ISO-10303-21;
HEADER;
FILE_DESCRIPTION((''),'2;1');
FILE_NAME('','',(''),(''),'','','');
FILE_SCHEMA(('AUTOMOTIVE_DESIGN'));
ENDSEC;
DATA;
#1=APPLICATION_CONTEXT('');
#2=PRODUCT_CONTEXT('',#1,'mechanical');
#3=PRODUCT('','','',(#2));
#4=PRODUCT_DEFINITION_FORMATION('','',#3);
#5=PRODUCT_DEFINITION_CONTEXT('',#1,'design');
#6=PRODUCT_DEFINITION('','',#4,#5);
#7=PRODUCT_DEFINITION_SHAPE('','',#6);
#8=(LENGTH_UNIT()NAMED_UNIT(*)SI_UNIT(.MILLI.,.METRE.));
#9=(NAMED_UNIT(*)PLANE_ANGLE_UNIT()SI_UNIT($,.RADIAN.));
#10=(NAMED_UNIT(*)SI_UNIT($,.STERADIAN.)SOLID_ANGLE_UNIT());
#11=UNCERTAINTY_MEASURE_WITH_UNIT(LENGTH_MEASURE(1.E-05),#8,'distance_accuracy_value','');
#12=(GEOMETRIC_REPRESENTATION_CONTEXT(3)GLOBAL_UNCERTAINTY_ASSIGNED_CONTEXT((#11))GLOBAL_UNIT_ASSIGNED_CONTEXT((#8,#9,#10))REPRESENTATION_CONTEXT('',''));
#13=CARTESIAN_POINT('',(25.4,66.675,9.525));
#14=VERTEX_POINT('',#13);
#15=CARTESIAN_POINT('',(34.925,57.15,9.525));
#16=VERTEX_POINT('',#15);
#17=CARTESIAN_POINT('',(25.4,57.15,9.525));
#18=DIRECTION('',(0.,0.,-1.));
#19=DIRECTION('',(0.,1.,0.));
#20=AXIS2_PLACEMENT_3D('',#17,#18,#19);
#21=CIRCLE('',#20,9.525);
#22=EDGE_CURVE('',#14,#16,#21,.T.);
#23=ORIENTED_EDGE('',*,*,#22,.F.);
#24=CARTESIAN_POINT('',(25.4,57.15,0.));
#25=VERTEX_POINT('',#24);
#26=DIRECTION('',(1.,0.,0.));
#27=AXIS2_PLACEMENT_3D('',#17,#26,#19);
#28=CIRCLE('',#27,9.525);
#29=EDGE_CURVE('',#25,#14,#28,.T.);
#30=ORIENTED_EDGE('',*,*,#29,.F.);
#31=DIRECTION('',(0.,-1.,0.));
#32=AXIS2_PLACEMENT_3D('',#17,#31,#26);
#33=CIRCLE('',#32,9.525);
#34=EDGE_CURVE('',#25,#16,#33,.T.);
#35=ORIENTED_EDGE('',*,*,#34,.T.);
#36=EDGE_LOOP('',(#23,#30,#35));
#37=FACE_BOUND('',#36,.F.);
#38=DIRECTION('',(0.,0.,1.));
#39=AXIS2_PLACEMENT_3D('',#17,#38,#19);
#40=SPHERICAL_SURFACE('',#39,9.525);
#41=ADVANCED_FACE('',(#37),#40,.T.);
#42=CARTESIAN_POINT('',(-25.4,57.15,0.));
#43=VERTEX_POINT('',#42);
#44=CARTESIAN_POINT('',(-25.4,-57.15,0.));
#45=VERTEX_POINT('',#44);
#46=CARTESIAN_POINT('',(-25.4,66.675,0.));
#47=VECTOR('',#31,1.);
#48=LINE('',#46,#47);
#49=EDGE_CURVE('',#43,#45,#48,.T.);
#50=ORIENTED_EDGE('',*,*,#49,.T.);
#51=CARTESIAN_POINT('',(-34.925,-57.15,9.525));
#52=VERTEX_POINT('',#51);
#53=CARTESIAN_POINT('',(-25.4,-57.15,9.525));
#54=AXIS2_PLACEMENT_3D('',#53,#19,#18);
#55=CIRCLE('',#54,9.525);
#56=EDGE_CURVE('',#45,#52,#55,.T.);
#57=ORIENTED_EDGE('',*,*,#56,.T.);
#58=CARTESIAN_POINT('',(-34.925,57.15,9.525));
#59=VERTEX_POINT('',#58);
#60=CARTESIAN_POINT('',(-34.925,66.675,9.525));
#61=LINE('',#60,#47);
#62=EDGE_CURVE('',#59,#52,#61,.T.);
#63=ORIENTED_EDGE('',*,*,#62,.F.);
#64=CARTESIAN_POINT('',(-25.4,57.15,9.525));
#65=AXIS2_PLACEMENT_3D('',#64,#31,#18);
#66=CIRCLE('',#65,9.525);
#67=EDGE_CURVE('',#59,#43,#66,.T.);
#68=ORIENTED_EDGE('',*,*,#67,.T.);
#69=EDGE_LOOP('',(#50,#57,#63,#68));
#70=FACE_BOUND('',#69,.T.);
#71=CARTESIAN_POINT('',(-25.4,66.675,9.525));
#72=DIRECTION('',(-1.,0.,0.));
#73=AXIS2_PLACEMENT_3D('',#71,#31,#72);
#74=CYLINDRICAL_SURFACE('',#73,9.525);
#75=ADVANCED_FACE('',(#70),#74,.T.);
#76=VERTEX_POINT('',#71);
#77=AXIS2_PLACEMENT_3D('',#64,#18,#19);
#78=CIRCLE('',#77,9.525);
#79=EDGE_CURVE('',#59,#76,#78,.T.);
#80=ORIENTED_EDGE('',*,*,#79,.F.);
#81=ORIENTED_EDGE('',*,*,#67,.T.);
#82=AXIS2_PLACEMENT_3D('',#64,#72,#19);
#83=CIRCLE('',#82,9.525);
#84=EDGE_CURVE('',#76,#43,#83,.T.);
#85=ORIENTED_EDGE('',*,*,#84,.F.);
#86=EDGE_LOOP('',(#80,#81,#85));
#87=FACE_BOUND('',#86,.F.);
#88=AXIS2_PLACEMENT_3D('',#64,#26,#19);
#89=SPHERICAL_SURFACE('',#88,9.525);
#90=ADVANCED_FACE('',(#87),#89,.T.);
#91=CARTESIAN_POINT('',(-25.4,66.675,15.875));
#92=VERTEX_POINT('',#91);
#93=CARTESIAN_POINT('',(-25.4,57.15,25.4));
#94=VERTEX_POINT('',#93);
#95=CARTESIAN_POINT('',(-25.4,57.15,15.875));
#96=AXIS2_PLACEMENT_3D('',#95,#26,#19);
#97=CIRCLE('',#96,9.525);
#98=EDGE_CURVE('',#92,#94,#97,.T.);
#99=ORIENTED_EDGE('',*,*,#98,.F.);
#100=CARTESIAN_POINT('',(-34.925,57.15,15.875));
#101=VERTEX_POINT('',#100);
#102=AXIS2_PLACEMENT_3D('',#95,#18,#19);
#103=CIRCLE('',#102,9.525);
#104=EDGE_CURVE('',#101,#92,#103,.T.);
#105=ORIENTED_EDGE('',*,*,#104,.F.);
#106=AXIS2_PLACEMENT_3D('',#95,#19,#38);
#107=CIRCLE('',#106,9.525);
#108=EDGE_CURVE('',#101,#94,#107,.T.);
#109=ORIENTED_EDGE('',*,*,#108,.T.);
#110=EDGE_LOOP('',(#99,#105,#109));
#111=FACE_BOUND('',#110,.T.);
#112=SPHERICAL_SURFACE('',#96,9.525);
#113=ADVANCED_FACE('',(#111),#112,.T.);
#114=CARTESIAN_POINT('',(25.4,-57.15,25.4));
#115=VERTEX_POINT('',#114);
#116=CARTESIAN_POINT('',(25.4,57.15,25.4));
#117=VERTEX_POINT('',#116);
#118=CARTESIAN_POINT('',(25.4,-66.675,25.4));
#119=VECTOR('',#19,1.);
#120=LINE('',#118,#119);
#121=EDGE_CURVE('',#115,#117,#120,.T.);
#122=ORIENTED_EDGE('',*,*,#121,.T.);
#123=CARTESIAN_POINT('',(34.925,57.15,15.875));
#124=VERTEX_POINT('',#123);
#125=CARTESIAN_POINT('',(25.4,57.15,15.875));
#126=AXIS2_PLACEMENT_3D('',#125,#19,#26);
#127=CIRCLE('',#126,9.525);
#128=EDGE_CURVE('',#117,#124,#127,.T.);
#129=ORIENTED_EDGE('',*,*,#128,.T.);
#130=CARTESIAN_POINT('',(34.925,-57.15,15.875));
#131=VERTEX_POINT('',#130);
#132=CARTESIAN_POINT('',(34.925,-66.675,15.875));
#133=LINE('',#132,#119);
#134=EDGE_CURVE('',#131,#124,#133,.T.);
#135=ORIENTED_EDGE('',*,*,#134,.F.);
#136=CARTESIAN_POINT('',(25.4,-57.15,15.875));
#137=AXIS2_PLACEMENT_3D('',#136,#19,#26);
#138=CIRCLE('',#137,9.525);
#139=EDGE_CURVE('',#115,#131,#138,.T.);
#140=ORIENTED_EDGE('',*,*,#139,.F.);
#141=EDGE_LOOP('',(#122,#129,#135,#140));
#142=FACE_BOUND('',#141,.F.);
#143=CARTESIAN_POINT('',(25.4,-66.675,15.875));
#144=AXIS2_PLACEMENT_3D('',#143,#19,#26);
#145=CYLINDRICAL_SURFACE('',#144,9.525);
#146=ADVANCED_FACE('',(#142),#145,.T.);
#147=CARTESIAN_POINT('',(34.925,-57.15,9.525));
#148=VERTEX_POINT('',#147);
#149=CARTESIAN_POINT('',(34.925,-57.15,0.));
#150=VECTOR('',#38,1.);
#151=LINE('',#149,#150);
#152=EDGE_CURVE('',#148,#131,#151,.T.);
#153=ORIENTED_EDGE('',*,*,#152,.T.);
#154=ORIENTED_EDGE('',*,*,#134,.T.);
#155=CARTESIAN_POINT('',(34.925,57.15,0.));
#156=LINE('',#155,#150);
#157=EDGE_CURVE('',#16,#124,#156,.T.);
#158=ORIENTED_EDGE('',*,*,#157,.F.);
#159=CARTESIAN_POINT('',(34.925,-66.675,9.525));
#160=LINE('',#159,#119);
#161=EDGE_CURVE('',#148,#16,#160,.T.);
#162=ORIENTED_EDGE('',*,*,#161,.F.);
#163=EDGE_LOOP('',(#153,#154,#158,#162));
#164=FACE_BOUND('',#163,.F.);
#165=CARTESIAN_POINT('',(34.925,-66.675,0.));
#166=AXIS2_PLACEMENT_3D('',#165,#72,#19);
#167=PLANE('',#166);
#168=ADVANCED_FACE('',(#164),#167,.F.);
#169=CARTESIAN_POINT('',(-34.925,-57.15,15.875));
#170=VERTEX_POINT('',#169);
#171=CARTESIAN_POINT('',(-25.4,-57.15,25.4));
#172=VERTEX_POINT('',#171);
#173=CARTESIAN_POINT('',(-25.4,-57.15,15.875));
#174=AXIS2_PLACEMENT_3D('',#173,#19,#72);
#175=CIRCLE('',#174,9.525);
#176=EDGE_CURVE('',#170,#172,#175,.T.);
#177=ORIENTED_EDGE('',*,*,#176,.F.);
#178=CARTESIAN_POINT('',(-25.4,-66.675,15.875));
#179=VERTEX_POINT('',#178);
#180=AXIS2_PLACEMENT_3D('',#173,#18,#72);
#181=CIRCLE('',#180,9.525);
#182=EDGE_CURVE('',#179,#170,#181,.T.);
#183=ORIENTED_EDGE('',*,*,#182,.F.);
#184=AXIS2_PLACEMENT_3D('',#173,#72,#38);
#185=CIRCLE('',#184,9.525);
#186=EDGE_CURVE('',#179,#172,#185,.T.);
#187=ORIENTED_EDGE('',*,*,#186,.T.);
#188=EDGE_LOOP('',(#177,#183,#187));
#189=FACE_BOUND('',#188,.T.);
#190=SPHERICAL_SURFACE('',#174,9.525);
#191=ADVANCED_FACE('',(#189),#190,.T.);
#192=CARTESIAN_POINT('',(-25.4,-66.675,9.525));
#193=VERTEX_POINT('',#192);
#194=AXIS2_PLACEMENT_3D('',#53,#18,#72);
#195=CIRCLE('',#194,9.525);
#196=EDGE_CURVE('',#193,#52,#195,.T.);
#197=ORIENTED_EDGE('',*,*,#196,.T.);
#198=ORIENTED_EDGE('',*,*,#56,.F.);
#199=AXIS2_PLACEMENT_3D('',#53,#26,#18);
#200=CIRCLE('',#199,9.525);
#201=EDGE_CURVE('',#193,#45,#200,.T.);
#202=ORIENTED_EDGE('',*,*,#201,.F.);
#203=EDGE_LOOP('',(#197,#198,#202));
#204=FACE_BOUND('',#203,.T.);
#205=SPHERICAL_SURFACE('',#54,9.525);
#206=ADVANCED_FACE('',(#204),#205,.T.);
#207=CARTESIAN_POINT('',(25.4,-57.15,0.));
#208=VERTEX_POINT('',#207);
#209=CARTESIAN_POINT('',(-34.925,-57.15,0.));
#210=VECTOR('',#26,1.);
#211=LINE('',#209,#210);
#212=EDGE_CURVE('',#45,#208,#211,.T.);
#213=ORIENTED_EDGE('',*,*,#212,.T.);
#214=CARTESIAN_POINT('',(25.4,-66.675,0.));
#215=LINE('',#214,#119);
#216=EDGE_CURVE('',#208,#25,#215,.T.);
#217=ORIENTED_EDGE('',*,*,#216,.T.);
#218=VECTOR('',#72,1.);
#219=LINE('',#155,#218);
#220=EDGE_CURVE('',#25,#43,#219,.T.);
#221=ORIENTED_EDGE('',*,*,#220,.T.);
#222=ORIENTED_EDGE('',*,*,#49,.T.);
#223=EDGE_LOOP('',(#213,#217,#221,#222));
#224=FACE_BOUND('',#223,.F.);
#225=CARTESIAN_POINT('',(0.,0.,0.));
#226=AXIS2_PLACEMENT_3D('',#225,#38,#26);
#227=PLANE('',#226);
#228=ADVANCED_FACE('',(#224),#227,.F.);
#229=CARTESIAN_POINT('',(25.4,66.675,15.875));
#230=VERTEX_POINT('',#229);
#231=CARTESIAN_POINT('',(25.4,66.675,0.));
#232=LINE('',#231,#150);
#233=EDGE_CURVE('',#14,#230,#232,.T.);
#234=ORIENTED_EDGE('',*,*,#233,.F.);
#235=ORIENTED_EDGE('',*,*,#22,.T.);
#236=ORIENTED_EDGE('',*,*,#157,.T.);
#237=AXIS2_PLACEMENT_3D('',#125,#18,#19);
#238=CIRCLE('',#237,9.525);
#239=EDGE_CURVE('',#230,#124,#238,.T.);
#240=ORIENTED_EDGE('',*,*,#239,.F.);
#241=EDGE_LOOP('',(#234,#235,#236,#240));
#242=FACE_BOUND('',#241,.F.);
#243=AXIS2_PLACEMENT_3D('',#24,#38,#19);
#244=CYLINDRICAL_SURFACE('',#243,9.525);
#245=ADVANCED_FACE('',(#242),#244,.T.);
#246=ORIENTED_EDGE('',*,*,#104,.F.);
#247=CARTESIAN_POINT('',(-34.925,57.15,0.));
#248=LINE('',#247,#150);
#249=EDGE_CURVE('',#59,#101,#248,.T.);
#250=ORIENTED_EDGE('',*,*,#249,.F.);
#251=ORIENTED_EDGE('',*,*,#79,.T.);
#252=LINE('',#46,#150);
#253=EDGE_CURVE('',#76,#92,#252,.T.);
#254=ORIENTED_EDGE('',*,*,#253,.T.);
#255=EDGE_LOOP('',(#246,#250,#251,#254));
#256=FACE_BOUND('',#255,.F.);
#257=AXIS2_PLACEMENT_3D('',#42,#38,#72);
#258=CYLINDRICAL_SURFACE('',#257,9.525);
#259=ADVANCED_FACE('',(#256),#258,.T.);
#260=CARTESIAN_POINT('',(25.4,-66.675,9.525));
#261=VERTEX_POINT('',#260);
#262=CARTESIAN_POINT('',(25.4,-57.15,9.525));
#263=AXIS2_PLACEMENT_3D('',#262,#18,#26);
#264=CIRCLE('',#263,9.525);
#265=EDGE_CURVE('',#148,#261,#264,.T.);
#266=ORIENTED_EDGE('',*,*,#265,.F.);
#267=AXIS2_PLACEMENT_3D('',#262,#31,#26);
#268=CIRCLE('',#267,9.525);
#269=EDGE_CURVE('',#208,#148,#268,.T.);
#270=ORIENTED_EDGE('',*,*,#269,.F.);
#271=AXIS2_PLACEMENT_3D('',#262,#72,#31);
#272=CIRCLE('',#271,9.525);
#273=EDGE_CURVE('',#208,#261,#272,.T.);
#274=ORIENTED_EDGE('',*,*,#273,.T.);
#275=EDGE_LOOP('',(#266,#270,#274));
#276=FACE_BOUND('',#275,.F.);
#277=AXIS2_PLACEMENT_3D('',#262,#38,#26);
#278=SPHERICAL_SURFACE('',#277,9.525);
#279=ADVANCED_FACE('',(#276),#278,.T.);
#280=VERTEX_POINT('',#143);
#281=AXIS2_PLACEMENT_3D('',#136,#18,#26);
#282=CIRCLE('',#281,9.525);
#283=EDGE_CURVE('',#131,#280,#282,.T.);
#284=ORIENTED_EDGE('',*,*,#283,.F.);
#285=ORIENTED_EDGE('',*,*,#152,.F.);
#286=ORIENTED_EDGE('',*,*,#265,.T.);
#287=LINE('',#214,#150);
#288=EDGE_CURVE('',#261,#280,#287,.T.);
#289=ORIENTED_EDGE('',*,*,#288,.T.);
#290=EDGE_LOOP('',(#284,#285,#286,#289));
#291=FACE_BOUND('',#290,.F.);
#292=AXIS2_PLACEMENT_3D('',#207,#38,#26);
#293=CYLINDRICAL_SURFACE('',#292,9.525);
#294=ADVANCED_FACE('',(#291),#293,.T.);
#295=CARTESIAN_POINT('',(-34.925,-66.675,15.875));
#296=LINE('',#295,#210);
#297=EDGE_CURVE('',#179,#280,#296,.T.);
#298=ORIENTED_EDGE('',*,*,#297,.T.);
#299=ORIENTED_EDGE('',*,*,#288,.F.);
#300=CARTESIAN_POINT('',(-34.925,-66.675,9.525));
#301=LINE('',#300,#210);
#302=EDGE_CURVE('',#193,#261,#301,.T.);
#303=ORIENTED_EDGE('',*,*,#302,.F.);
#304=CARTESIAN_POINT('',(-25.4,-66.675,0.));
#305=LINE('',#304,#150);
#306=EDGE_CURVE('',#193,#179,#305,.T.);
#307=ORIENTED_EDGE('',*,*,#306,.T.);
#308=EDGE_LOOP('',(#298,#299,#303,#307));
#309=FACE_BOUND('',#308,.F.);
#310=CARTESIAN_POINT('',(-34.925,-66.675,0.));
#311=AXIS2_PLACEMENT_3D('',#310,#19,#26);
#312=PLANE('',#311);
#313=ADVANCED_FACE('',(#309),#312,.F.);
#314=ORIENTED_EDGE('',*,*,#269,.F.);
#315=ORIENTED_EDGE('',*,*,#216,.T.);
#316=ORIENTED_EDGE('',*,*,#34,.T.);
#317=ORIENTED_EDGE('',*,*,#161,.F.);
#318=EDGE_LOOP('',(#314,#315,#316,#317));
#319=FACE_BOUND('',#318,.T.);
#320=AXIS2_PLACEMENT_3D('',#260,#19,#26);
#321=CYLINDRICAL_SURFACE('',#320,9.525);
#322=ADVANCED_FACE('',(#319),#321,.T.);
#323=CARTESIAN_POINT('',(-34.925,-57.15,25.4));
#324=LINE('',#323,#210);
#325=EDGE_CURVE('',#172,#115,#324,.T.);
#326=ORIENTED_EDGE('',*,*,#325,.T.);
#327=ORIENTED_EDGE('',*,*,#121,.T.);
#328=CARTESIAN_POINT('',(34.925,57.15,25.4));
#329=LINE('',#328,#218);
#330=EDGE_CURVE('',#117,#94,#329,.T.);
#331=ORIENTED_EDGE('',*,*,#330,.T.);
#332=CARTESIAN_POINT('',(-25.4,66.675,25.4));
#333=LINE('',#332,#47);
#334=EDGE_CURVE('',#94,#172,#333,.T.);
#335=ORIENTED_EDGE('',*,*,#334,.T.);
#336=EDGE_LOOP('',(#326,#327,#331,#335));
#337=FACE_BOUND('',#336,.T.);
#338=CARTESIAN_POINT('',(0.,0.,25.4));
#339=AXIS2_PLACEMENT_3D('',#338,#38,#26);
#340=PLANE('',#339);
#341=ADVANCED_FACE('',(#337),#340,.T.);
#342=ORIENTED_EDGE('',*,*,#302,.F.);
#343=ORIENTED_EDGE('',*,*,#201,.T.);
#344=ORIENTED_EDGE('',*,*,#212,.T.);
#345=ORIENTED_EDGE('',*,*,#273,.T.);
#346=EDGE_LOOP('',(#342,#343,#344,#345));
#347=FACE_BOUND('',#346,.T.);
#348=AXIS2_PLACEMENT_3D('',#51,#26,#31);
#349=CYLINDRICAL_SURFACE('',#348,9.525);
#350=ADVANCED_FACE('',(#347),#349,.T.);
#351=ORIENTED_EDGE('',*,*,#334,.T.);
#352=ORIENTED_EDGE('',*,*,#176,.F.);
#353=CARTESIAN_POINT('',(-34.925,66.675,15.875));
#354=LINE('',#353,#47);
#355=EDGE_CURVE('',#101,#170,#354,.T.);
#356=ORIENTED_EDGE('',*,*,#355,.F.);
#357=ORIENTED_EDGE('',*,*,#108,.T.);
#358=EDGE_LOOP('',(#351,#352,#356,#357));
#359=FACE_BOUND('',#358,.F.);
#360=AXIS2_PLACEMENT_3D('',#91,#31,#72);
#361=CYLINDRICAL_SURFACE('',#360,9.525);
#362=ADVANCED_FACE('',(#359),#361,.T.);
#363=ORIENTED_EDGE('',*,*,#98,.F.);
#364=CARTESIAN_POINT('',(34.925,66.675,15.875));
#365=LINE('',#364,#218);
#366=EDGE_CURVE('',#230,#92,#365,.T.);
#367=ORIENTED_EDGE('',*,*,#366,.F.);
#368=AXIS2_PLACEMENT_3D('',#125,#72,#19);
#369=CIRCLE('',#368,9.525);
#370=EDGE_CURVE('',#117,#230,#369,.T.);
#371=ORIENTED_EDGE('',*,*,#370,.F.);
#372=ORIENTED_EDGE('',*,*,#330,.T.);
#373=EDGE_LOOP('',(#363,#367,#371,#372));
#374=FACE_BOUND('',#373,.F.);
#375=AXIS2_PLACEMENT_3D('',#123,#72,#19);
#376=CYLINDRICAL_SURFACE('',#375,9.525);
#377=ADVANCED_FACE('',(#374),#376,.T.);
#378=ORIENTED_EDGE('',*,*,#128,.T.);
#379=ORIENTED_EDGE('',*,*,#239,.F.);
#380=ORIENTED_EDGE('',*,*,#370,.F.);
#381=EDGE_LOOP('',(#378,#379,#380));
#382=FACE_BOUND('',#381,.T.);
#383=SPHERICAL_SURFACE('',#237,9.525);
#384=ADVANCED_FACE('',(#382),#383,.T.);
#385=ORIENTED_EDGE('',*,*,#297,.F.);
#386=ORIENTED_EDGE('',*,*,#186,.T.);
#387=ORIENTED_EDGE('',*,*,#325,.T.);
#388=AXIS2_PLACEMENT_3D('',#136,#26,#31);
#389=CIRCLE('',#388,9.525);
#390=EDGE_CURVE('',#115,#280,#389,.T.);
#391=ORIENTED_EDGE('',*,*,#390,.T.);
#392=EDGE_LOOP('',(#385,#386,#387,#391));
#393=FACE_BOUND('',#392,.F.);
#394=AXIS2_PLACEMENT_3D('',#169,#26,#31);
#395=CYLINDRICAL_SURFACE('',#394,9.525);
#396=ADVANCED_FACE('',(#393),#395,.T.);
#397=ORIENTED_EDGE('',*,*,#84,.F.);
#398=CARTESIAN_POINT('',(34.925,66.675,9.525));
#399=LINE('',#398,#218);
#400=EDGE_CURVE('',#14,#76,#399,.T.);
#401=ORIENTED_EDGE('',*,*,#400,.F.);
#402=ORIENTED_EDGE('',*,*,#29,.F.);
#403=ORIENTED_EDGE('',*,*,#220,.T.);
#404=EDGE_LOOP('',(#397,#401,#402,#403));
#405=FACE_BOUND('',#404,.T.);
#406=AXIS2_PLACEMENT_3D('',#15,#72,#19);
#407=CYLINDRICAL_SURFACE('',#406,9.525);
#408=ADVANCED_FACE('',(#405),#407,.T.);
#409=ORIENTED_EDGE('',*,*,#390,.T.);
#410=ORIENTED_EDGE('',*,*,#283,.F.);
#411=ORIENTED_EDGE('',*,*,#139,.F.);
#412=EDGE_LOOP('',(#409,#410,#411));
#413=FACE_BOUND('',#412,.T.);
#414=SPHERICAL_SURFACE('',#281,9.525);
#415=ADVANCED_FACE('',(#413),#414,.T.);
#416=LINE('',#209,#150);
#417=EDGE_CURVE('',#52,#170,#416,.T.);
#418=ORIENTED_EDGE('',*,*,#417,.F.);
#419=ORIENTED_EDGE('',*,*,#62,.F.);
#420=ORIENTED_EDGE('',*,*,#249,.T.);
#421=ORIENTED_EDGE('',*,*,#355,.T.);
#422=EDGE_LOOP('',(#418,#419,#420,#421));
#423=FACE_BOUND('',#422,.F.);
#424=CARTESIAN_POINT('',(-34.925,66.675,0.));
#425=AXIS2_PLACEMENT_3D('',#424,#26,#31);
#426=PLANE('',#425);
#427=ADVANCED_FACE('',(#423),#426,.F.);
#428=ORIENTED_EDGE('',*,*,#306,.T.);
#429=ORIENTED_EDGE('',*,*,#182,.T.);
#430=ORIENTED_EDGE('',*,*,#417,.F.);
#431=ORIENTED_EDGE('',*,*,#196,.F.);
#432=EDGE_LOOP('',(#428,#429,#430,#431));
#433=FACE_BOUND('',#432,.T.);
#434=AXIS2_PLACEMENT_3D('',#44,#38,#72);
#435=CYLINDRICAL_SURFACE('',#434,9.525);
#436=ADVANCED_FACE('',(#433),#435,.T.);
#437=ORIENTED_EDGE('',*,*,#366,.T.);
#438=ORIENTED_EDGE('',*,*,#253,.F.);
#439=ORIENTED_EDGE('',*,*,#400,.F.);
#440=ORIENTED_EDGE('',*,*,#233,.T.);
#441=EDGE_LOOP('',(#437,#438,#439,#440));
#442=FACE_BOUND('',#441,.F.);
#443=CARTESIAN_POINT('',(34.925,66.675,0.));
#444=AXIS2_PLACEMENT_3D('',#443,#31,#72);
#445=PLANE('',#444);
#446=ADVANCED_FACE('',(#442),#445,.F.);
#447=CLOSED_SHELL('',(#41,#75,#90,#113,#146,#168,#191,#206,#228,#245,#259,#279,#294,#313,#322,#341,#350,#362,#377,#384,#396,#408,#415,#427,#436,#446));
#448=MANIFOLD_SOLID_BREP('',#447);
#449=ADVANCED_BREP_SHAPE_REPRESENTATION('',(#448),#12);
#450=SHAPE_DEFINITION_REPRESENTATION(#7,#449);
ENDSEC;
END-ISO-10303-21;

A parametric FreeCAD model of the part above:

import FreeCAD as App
import Part
import Sketcher
from FreeCAD import Vector
Q = App.Units.Quantity

doc = App.newDocument("Part")
body = doc.addObject("PartDesign::Body", "Body")

sketch1 = body.newObject("Sketcher::SketchObject", "Sketch")
sketch1.AttachmentSupport = (doc.getObject("XY_Plane"), [""])
sketch1.MapMode = "FlatFace"
sketch1.addGeometry([
    Part.LineSegment(Vector(-35, 67, 0), Vector(-35, -67, 0)),
    Part.LineSegment(Vector(-35, -67, 0), Vector(35, -67, 0)),
    Part.LineSegment(Vector(35, -67, 0), Vector(35, 67, 0)),
    Part.LineSegment(Vector(35, 67, 0), Vector(-35, 67, 0)),
], False)
sketch1.addConstraint([
    Sketcher.Constraint("Coincident", 0, 2, 1, 1),
    Sketcher.Constraint("Coincident", 1, 2, 2, 1),
    Sketcher.Constraint("Coincident", 2, 2, 3, 1),
    Sketcher.Constraint("Coincident", 3, 2, 0, 1),
    Sketcher.Constraint("Vertical", 0),
    Sketcher.Constraint("Horizontal", 1),
    Sketcher.Constraint("Vertical", 2),
    Sketcher.Constraint("Horizontal", 3),
    Sketcher.Constraint("Symmetric", 0, 2, 2, 2, -1, 1),
    Sketcher.Constraint("DistanceX", 1, 1, 1, 2, Q("2.75 in")),
    Sketcher.Constraint("DistanceY", 0, 2, 0, 1, Q("5.25 in")),
])
pad1 = body.newObject("PartDesign::Pad", "Pad")
pad1.Profile = sketch1
pad1.Length = Q("1 in")
doc.recompute()

fillet = body.newObject("PartDesign::Fillet", "Fillet")
fillet.Base = (pad1, ["Edge1"])
fillet.UseAllEdges = True
fillet.Radius = Q("0.375 in")

doc.recompute()
